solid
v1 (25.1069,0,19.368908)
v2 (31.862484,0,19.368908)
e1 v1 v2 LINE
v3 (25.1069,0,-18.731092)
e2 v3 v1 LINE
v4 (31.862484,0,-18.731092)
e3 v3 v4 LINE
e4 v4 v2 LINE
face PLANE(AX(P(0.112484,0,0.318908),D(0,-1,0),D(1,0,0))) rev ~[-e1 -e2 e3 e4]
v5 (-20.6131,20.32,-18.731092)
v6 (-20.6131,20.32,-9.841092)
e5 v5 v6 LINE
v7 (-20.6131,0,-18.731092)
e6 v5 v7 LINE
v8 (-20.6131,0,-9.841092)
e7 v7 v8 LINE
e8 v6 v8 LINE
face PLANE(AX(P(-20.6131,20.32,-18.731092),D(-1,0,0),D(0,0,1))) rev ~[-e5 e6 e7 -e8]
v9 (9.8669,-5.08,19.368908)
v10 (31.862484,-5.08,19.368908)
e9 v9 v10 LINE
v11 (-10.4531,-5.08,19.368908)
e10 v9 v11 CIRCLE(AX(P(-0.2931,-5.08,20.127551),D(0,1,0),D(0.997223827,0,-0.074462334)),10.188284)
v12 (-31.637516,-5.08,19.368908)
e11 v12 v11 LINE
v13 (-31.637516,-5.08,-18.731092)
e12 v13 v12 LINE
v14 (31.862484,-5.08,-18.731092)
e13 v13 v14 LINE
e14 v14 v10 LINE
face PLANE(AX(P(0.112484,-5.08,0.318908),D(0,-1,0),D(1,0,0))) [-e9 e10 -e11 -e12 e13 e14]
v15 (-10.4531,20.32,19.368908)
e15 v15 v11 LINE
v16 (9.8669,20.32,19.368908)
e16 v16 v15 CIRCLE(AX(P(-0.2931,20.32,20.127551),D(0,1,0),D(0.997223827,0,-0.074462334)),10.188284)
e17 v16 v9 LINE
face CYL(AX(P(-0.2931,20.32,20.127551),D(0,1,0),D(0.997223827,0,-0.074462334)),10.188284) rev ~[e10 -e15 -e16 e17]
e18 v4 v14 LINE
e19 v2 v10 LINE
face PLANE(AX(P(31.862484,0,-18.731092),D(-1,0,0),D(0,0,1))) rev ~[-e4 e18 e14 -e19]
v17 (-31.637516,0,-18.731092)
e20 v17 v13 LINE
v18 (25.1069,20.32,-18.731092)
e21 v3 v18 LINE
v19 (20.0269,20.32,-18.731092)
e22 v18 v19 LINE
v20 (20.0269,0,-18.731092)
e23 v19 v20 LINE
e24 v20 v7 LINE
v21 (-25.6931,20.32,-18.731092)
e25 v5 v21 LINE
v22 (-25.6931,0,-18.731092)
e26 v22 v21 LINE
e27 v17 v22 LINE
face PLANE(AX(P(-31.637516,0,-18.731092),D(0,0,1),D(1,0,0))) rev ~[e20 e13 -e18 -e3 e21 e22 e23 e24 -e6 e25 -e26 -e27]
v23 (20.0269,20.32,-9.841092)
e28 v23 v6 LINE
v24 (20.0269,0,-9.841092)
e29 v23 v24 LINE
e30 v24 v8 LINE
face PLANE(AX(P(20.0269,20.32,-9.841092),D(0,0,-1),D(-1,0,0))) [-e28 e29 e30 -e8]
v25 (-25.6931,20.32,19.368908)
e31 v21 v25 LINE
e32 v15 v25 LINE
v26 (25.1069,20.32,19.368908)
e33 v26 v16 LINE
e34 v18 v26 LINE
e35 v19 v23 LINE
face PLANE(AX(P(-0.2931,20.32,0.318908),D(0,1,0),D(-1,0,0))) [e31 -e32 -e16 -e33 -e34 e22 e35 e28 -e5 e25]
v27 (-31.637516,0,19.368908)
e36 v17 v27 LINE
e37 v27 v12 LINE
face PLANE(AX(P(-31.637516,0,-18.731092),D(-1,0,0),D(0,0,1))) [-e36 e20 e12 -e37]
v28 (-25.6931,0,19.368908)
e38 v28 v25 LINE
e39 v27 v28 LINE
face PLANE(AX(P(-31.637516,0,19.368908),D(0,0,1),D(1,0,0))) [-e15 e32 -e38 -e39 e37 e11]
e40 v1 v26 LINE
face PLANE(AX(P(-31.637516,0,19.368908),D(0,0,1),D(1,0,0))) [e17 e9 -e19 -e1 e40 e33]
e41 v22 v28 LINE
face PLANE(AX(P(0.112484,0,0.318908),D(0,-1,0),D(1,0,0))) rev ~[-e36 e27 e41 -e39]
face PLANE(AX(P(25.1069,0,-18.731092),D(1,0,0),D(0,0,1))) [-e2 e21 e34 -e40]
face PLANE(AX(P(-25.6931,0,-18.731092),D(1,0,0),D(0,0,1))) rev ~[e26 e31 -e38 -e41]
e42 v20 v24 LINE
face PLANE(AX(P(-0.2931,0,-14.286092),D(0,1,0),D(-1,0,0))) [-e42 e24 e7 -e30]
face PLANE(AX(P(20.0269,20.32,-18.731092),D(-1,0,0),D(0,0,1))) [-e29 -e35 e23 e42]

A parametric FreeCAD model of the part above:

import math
import FreeCAD as App
import Part
import Sketcher
from FreeCAD import Vector
Q = App.Units.Quantity


def add_polygon(sketch, points):
    """Adds a closed chain of lines whose ends are joined by coincident constraints."""
    first, n = sketch.GeometryCount, len(points)
    for a, b in zip(points, points[1:] + points[:1]):
        sketch.addGeometry(Part.LineSegment(App.Vector(*a, 0), App.Vector(*b, 0)), False)
    for i in range(n):
        sketch.addConstraint(Sketcher.Constraint("Coincident", first + i, 2, first + (i + 1) % n, 1))

doc = App.newDocument("Part")
body = doc.addObject("PartDesign::Body", "Body")

# Sketch on XZ plane
sketch1 = body.newObject("Sketcher::SketchObject", "Sketch")
sketch1.AttachmentSupport = (doc.getObject("XZ_Plane"), [""])
sketch1.MapMode = "FlatFace"
add_polygon(sketch1, [(-31.637516, 19.368908), (-31.637516, -18.731092), (31.862484, -18.731092), (31.862484, 19.368908)])  # lines 0-3
sketch1.addConstraint(Sketcher.Constraint("Vertical", 0))
sketch1.addConstraint(Sketcher.Constraint("Horizontal", 1))
sketch1.addConstraint(Sketcher.Constraint("Vertical", 2))
sketch1.addConstraint(Sketcher.Constraint("Horizontal", 3))
sketch1.addConstraint(Sketcher.Constraint("DistanceX", 1, 1, 1, 2, Q("2.5 in")))
sketch1.addConstraint(Sketcher.Constraint("DistanceY", 0, 2, 0, 1, Q("1.5 in")))
sketch1.addConstraint(Sketcher.Constraint("DistanceY", -1, 1, 2, 2, 19.368908))
sketch1.addConstraint(Sketcher.Constraint("DistanceX", 0, 2, -1, 1, 31.637516))
pad1 = body.newObject("PartDesign::Pad", "Pad")
pad1.Profile = sketch1
pad1.Length = Q("0.2 in")

# Sketch on XZ plane
sketch2 = body.newObject("Sketcher::SketchObject", "Sketch001")
sketch2.AttachmentSupport = (doc.getObject("XZ_Plane"), [""])
sketch2.MapMode = "FlatFace"
add_polygon(sketch2, [(25.1069, 19.368908), (25.1069, -18.731092), (-25.6931, -18.731092), (-25.6931, 19.368908)])  # lines 0-3
sketch2.addConstraint(Sketcher.Constraint("Vertical", 0))
sketch2.addConstraint(Sketcher.Constraint("Horizontal", 1))
sketch2.addConstraint(Sketcher.Constraint("Vertical", 2))
sketch2.addConstraint(Sketcher.Constraint("Horizontal", 3))
sketch2.addConstraint(Sketcher.Constraint("DistanceX", 1, 2, 1, 1, Q("2 in")))
sketch2.addConstraint(Sketcher.Constraint("DistanceY", 0, 2, 0, 1, Q("1.5 in")))
sketch2.addConstraint(Sketcher.Constraint("DistanceX", -1, 1, 0, 2, 25.1069))
sketch2.addConstraint(Sketcher.Constraint("DistanceY", -1, 1, 2, 2, 19.368908))
pad2 = body.newObject("PartDesign::Pad", "Pad001")
pad2.Profile = sketch2
pad2.Length = Q("0.8 in")
pad2.Reversed = True

# Sketch on XZ plane
sketch3 = body.newObject("Sketcher::SketchObject", "Sketch002")
sketch3.AttachmentSupport = (doc.getObject("XZ_Plane"), [""])
sketch3.MapMode = "FlatFace"
sketch3.AttachmentOffset = App.Placement(Vector(0, 0, -0.8 * 25.4), App.Rotation())
add_polygon(sketch3, [(20.0269, -9.841092), (20.0269, -18.731092), (-20.6131, -18.731092), (-20.6131, -9.841092)])  # lines 0-3
sketch3.addConstraint(Sketcher.Constraint("Vertical", 0))
sketch3.addConstraint(Sketcher.Constraint("Horizontal", 1))
sketch3.addConstraint(Sketcher.Constraint("Vertical", 2))
sketch3.addConstraint(Sketcher.Constraint("Horizontal", 3))
sketch3.addConstraint(Sketcher.Constraint("DistanceX", 1, 2, 1, 1, Q("1.6 in")))
sketch3.addConstraint(Sketcher.Constraint("DistanceY", 0, 2, 0, 1, Q("0.35 in")))
sketch3.addConstraint(Sketcher.Constraint("DistanceX", -1, 1, 0, 2, 20.0269))
sketch3.addConstraint(Sketcher.Constraint("DistanceY", 0, 2, -1, 1, 18.731092))
pocket1 = body.newObject("PartDesign::Pocket", "Pocket")
pocket1.Profile = sketch3
pocket1.Length = Q("0.8 in")
pocket1.Reversed = True

# Sketch on XZ plane
sketch4 = body.newObject("Sketcher::SketchObject", "Sketch003")
sketch4.AttachmentSupport = (doc.getObject("XZ_Plane"), [""])
sketch4.MapMode = "FlatFace"
sketch4.AttachmentOffset = App.Placement(Vector(0, 0, -0.8 * 25.4), App.Rotation())
sketch4.addGeometry(Part.LineSegment(Vector(-10.4531, 19.368908, 0), Vector(9.8669, 19.368908, 0)), False)
sketch4.addGeometry(Part.ArcOfCircle(Part.Circle(Vector(-0.2931, 20.127551, 0), Vector(0, 0, 1), 10.188284), math.radians(-175.72967), math.radians(-4.27033)), False)
sketch4.addConstraint(Sketcher.Constraint("Coincident", 0, 1, 1, 1))
sketch4.addConstraint(Sketcher.Constraint("Coincident", 1, 2, 0, 2))
sketch4.addConstraint(Sketcher.Constraint("Horizontal", 0))
sketch4.addConstraint(Sketcher.Constraint("DistanceX", 0, 1, 0, 2, Q("0.8 in")))
sketch4.addConstraint(Sketcher.Constraint("Radius", 1, 10.188284))
sketch4.addConstraint(Sketcher.Constraint("DistanceX", 1, 3, -1, 1, 0.2931))
sketch4.addConstraint(Sketcher.Constraint("DistanceY", -1, 1, 1, 3, 20.127551))
pocket2 = body.newObject("PartDesign::Pocket", "Pocket001")
pocket2.Profile = sketch4
pocket2.Length = Q("2 in")
pocket2.Reversed = True

doc.recompute()
